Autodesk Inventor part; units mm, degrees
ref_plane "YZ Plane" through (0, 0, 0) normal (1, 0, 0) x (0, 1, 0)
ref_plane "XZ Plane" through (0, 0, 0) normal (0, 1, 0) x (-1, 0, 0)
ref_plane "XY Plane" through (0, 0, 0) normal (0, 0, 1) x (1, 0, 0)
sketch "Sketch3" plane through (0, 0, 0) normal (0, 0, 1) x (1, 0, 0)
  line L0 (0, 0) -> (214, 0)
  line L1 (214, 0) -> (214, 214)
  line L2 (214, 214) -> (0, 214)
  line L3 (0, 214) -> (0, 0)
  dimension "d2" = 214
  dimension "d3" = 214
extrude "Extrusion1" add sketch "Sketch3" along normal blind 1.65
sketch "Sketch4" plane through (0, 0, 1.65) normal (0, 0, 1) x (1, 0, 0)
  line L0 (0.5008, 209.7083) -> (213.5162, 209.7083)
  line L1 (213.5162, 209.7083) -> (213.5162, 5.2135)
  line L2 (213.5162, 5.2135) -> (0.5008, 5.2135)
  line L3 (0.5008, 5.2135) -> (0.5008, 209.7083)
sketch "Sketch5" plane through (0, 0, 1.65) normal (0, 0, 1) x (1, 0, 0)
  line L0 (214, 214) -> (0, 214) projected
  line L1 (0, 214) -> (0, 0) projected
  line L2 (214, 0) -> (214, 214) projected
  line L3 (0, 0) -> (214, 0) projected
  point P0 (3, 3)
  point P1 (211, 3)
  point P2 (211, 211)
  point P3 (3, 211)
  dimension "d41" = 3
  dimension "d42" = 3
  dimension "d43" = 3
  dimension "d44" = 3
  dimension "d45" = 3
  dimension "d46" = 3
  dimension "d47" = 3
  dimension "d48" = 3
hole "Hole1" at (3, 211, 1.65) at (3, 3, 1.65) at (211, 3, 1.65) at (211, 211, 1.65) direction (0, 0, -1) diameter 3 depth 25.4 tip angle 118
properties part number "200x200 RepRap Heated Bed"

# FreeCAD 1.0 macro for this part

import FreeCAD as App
import Part
import Sketcher

V = App.Vector
Q = App.Units.Quantity


def add_polygon(sketch, points):
    """Adds a closed chain of lines whose ends are joined by coincident constraints."""
    first, n = sketch.GeometryCount, len(points)
    for a, b in zip(points, points[1:] + points[:1]):
        sketch.addGeometry(Part.LineSegment(App.Vector(*a, 0), App.Vector(*b, 0)), False)
    for i in range(n):
        sketch.addConstraint(Sketcher.Constraint("Coincident", first + i, 2, first + (i + 1) % n, 1))

doc = App.newDocument("Part")
body = doc.addObject("PartDesign::Body", "Body")

sketch1 = body.newObject("Sketcher::SketchObject", "Sketch")
sketch1.AttachmentSupport = (doc.getObject("XY_Plane"), [""])
sketch1.MapMode = "FlatFace"
add_polygon(sketch1, [(0, 214), (0, 0), (214, 0), (214, 214)])
sketch1.addConstraint([
    Sketcher.Constraint("Vertical", 0),
    Sketcher.Constraint("Horizontal", 1),
    Sketcher.Constraint("Vertical", 2),
    Sketcher.Constraint("Horizontal", 3),
    Sketcher.Constraint("Coincident", 0, 2, -1, 1),
    Sketcher.Constraint("Equal", 3, 0),
    Sketcher.Constraint("DistanceX", 1, 1, 1, 2, Q("8.4252 in")),
])
pad1 = body.newObject("PartDesign::Pad", "Pad")
pad1.Profile = sketch1
pad1.Length = 1.65

sketch2 = body.newObject("Sketcher::SketchObject", "Sketch001")
sketch2.AttachmentSupport = (doc.getObject("XY_Plane"), [""])
sketch2.MapMode = "FlatFace"
sketch2.AttachmentOffset = App.Placement(V(0, 0, 1.65), App.Rotation())
sketch2.addGeometry([
    Part.Circle(V(3, 211, 0), V(0, 0, 1), 1.5),
    Part.Circle(V(3, 3, 0), V(0, 0, 1), 1.5),
    Part.Circle(V(211, 3, 0), V(0, 0, 1), 1.5),
    Part.Circle(V(211, 211, 0), V(0, 0, 1), 1.5),
], False)
sketch2.addConstraint([
    Sketcher.Constraint("Equal", 0, 1),
    Sketcher.Constraint("Equal", 1, 2),
    Sketcher.Constraint("Equal", 2, 3),
    Sketcher.Constraint("Horizontal", 1, 3, 2, 3),
    Sketcher.Constraint("Horizontal", 0, 3, 3, 3),
    Sketcher.Constraint("Vertical", 0, 3, 1, 3),
    Sketcher.Constraint("Vertical", 2, 3, 3, 3),
    Sketcher.Constraint("Diameter", 0, Q("0.1181 in")),
    Sketcher.Constraint("DistanceX", -1, 1, 0, 3, Q("0.1181 in")),
    Sketcher.Constraint("DistanceY", -1, 1, 1, 3, Q("0.1181 in")),
    Sketcher.Constraint("DistanceY", -1, 1, 0, 3, Q("211 mm")),
    Sketcher.Constraint("DistanceX", -1, 1, 2, 3, Q("211 mm")),
])
doc.recompute()
hole = body.newObject("PartDesign::Hole", "Hole")
hole.Profile = sketch2
hole.ThreadType = "None"
hole.Diameter = Q("0.1181102 in")
hole.DepthType = "Dimension"
hole.Depth = Q("1 in")
hole.DrillPoint = "Angled"
hole.DrillPointAngle = 118

doc.recompute()
